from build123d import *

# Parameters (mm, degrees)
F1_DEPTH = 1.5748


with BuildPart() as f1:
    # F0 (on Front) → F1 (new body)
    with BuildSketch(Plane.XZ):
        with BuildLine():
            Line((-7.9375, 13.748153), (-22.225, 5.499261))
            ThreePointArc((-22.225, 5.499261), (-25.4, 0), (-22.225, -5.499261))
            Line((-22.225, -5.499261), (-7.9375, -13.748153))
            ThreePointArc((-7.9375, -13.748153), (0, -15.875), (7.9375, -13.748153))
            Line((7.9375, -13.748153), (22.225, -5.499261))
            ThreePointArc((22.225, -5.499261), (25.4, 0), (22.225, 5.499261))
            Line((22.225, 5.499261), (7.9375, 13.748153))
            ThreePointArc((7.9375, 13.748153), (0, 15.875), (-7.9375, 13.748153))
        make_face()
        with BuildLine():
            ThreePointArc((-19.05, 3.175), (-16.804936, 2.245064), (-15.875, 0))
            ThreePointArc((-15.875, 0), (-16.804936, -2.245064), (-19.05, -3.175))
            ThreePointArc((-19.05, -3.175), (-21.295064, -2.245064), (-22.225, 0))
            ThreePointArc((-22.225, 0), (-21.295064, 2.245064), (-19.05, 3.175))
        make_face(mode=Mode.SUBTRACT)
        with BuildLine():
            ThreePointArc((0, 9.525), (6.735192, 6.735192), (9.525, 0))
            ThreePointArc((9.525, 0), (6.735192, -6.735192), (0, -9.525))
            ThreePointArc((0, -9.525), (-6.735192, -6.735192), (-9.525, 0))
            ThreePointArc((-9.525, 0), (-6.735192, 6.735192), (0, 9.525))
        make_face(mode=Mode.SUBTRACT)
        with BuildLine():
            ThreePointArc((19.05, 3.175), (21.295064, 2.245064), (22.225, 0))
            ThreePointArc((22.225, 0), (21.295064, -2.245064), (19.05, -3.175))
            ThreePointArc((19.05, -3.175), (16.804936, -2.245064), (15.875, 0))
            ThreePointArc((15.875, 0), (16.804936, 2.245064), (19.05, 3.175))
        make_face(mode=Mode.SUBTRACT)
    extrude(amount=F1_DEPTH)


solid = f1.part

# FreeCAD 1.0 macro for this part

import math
import FreeCAD as App
import Part
import Sketcher
Q = App.Units.Quantity

doc = App.newDocument("Part")
body = doc.addObject("PartDesign::Body", "Body")

# Sketch on XZ plane
sketch1 = doc.addObject("Sketcher::SketchObject", "Sketch")
body.addObject(sketch1)
sketch1.AttachmentSupport = (doc.XZ_Plane, [""])
sketch1.MapMode = "FlatFace"
sketch1.addGeometry([
    Part.LineSegment(App.Vector(-7.9, 13.7, 0), App.Vector(-22.2, 5.5, 0)),  # 0
    Part.ArcOfCircle(Part.Circle(App.Vector(-19.1, 0, 0), App.Vector(0, 0, 1), 6.3), math.radians(120), math.radians(240)),  # 1
    Part.LineSegment(App.Vector(-22.2, -5.5, 0), App.Vector(-7.9, -13.7, 0)),  # 2
    Part.ArcOfCircle(Part.Circle(App.Vector(0, 0, 0), App.Vector(0, 0, 1), 15.9), math.radians(-120), math.radians(-60)),  # 3
    Part.LineSegment(App.Vector(7.9, -13.7, 0), App.Vector(22.2, -5.5, 0)),  # 4
    Part.ArcOfCircle(Part.Circle(App.Vector(19.1, 0, 0), App.Vector(0, 0, 1), 6.3), math.radians(-60), math.radians(60)),  # 5
    Part.LineSegment(App.Vector(22.2, 5.5, 0), App.Vector(7.9, 13.7, 0)),  # 6
    Part.ArcOfCircle(Part.Circle(App.Vector(0, 0, 0), App.Vector(0, 0, 1), 15.9), math.radians(60), math.radians(120)),  # 7
    Part.ArcOfCircle(Part.Circle(App.Vector(-19, 0, 0), App.Vector(0, 0, 1), 3.2), math.radians(90), math.radians(180)),  # 8
    Part.ArcOfCircle(Part.Circle(App.Vector(-19.1, 0, 0), App.Vector(0, 0, 1), 3.2), math.radians(0), math.radians(90)),  # 9
    Part.ArcOfCircle(Part.Circle(App.Vector(-19.1, 0, 0), App.Vector(0, 0, 1), 3.2), math.radians(-90), math.radians(0)),  # 10
    Part.ArcOfCircle(Part.Circle(App.Vector(-19, 0, 0), App.Vector(0, 0, 1), 3.2), math.radians(-180), math.radians(-90)),  # 11
    Part.ArcOfCircle(Part.Circle(App.Vector(0, 0, 0), App.Vector(0, 0, 1), 9.5), math.radians(90), math.radians(180)),  # 12
    Part.ArcOfCircle(Part.Circle(App.Vector(0, 0, 0), App.Vector(0, 0, 1), 9.5), math.radians(0), math.radians(90)),  # 13
    Part.ArcOfCircle(Part.Circle(App.Vector(0, 0, 0), App.Vector(0, 0, 1), 9.5), math.radians(-90), math.radians(0)),  # 14
    Part.ArcOfCircle(Part.Circle(App.Vector(0, 0, 0), App.Vector(0, 0, 1), 9.5), math.radians(-180), math.radians(-90)),  # 15
    Part.ArcOfCircle(Part.Circle(App.Vector(19.1, 0, 0), App.Vector(0, 0, 1), 3.2), math.radians(90), math.radians(180)),  # 16
    Part.ArcOfCircle(Part.Circle(App.Vector(19, 0, 0), App.Vector(0, 0, 1), 3.2), math.radians(0), math.radians(90)),  # 17
    Part.ArcOfCircle(Part.Circle(App.Vector(19, 0, 0), App.Vector(0, 0, 1), 3.2), math.radians(-90), math.radians(0)),  # 18
    Part.ArcOfCircle(Part.Circle(App.Vector(19.1, 0, 0), App.Vector(0, 0, 1), 3.2), math.radians(-180), math.radians(-90)),  # 19
], False)
sketch1.addConstraint([
    Sketcher.Constraint("Tangent", 0, 2, 1, 1),
    Sketcher.Constraint("Tangent", 1, 2, 2, 1),
    Sketcher.Constraint("Tangent", 2, 2, 3, 1),
    Sketcher.Constraint("Tangent", 3, 2, 4, 1),
    Sketcher.Constraint("Tangent", 4, 2, 5, 1),
    Sketcher.Constraint("Tangent", 5, 2, 6, 1),
    Sketcher.Constraint("Tangent", 6, 2, 7, 1),
    Sketcher.Constraint("Tangent", 7, 2, 0, 1),
    Sketcher.Constraint("Tangent", 8, 1, 9, 2),
    Sketcher.Constraint("Tangent", 9, 1, 10, 2),
    Sketcher.Constraint("Tangent", 10, 1, 11, 2),
    Sketcher.Constraint("Tangent", 11, 1, 8, 2),
    Sketcher.Constraint("Tangent", 12, 1, 13, 2),
    Sketcher.Constraint("Tangent", 13, 1, 14, 2),
    Sketcher.Constraint("Tangent", 14, 1, 15, 2),
    Sketcher.Constraint("Tangent", 15, 1, 12, 2),
    Sketcher.Constraint("Tangent", 16, 1, 17, 2),
    Sketcher.Constraint("Tangent", 17, 1, 18, 2),
    Sketcher.Constraint("Tangent", 18, 1, 19, 2),
    Sketcher.Constraint("Tangent", 19, 1, 16, 2),
    Sketcher.Constraint("Coincident", 3, 3, -1, 1),
    Sketcher.Constraint("Coincident", 7, 3, -1, 1),
    Sketcher.Constraint("Coincident", 12, 3, -1, 1),
    Sketcher.Constraint("Coincident", 8, 3, 1, 3),
    Sketcher.Constraint("Coincident", 16, 3, 5, 3),
    Sketcher.Constraint("Equal", 1, 5),
    Sketcher.Constraint("Equal", 3, 7),
    Sketcher.Constraint("Equal", 8, 9),
    Sketcher.Constraint("Equal", 12, 13),
    Sketcher.Constraint("Equal", 11, 16),
    Sketcher.Constraint("Equal", 16, 17),
    Sketcher.Constraint("Symmetric", 1, 3, 5, 3, -1, 1),
    Sketcher.Constraint("Symmetric", 8, 1, 16, 1, -2),
    Sketcher.Constraint("PointOnObject", 9, 1, -1),
    Sketcher.Constraint("PointOnObject", 11, 1, -1),
    Sketcher.Constraint("PointOnObject", 12, 1, -2),
    Sketcher.Constraint("PointOnObject", 13, 1, -1),
    Sketcher.Constraint("PointOnObject", 14, 1, -2),
    Sketcher.Constraint("PointOnObject", 15, 1, -1),
    Sketcher.Constraint("PointOnObject", 17, 1, -1),
    Sketcher.Constraint("PointOnObject", 19, 1, -1),
    Sketcher.Constraint("Vertical", 11, 3, 8, 1),
    Sketcher.Constraint("Vertical", 8, 1, 10, 1),
    Sketcher.Constraint("Vertical", 1, 2, 11, 1),
    Sketcher.Constraint("Vertical", 16, 1, 18, 1),
    Sketcher.Constraint("Radius", 1, Q("0.25 in")),
    Sketcher.Constraint("Angle", 0, Q("-150 deg")),
    Sketcher.Constraint("Radius", 3, Q("0.6249999 in")),
    Sketcher.Constraint("Radius", 12, Q("0.375 in")),
])
pad1 = doc.addObject("PartDesign::Pad", "Pad")
body.addObject(pad1)
pad1.Profile = sketch1
pad1.Length = Q("0.062 in")

doc.recompute()
